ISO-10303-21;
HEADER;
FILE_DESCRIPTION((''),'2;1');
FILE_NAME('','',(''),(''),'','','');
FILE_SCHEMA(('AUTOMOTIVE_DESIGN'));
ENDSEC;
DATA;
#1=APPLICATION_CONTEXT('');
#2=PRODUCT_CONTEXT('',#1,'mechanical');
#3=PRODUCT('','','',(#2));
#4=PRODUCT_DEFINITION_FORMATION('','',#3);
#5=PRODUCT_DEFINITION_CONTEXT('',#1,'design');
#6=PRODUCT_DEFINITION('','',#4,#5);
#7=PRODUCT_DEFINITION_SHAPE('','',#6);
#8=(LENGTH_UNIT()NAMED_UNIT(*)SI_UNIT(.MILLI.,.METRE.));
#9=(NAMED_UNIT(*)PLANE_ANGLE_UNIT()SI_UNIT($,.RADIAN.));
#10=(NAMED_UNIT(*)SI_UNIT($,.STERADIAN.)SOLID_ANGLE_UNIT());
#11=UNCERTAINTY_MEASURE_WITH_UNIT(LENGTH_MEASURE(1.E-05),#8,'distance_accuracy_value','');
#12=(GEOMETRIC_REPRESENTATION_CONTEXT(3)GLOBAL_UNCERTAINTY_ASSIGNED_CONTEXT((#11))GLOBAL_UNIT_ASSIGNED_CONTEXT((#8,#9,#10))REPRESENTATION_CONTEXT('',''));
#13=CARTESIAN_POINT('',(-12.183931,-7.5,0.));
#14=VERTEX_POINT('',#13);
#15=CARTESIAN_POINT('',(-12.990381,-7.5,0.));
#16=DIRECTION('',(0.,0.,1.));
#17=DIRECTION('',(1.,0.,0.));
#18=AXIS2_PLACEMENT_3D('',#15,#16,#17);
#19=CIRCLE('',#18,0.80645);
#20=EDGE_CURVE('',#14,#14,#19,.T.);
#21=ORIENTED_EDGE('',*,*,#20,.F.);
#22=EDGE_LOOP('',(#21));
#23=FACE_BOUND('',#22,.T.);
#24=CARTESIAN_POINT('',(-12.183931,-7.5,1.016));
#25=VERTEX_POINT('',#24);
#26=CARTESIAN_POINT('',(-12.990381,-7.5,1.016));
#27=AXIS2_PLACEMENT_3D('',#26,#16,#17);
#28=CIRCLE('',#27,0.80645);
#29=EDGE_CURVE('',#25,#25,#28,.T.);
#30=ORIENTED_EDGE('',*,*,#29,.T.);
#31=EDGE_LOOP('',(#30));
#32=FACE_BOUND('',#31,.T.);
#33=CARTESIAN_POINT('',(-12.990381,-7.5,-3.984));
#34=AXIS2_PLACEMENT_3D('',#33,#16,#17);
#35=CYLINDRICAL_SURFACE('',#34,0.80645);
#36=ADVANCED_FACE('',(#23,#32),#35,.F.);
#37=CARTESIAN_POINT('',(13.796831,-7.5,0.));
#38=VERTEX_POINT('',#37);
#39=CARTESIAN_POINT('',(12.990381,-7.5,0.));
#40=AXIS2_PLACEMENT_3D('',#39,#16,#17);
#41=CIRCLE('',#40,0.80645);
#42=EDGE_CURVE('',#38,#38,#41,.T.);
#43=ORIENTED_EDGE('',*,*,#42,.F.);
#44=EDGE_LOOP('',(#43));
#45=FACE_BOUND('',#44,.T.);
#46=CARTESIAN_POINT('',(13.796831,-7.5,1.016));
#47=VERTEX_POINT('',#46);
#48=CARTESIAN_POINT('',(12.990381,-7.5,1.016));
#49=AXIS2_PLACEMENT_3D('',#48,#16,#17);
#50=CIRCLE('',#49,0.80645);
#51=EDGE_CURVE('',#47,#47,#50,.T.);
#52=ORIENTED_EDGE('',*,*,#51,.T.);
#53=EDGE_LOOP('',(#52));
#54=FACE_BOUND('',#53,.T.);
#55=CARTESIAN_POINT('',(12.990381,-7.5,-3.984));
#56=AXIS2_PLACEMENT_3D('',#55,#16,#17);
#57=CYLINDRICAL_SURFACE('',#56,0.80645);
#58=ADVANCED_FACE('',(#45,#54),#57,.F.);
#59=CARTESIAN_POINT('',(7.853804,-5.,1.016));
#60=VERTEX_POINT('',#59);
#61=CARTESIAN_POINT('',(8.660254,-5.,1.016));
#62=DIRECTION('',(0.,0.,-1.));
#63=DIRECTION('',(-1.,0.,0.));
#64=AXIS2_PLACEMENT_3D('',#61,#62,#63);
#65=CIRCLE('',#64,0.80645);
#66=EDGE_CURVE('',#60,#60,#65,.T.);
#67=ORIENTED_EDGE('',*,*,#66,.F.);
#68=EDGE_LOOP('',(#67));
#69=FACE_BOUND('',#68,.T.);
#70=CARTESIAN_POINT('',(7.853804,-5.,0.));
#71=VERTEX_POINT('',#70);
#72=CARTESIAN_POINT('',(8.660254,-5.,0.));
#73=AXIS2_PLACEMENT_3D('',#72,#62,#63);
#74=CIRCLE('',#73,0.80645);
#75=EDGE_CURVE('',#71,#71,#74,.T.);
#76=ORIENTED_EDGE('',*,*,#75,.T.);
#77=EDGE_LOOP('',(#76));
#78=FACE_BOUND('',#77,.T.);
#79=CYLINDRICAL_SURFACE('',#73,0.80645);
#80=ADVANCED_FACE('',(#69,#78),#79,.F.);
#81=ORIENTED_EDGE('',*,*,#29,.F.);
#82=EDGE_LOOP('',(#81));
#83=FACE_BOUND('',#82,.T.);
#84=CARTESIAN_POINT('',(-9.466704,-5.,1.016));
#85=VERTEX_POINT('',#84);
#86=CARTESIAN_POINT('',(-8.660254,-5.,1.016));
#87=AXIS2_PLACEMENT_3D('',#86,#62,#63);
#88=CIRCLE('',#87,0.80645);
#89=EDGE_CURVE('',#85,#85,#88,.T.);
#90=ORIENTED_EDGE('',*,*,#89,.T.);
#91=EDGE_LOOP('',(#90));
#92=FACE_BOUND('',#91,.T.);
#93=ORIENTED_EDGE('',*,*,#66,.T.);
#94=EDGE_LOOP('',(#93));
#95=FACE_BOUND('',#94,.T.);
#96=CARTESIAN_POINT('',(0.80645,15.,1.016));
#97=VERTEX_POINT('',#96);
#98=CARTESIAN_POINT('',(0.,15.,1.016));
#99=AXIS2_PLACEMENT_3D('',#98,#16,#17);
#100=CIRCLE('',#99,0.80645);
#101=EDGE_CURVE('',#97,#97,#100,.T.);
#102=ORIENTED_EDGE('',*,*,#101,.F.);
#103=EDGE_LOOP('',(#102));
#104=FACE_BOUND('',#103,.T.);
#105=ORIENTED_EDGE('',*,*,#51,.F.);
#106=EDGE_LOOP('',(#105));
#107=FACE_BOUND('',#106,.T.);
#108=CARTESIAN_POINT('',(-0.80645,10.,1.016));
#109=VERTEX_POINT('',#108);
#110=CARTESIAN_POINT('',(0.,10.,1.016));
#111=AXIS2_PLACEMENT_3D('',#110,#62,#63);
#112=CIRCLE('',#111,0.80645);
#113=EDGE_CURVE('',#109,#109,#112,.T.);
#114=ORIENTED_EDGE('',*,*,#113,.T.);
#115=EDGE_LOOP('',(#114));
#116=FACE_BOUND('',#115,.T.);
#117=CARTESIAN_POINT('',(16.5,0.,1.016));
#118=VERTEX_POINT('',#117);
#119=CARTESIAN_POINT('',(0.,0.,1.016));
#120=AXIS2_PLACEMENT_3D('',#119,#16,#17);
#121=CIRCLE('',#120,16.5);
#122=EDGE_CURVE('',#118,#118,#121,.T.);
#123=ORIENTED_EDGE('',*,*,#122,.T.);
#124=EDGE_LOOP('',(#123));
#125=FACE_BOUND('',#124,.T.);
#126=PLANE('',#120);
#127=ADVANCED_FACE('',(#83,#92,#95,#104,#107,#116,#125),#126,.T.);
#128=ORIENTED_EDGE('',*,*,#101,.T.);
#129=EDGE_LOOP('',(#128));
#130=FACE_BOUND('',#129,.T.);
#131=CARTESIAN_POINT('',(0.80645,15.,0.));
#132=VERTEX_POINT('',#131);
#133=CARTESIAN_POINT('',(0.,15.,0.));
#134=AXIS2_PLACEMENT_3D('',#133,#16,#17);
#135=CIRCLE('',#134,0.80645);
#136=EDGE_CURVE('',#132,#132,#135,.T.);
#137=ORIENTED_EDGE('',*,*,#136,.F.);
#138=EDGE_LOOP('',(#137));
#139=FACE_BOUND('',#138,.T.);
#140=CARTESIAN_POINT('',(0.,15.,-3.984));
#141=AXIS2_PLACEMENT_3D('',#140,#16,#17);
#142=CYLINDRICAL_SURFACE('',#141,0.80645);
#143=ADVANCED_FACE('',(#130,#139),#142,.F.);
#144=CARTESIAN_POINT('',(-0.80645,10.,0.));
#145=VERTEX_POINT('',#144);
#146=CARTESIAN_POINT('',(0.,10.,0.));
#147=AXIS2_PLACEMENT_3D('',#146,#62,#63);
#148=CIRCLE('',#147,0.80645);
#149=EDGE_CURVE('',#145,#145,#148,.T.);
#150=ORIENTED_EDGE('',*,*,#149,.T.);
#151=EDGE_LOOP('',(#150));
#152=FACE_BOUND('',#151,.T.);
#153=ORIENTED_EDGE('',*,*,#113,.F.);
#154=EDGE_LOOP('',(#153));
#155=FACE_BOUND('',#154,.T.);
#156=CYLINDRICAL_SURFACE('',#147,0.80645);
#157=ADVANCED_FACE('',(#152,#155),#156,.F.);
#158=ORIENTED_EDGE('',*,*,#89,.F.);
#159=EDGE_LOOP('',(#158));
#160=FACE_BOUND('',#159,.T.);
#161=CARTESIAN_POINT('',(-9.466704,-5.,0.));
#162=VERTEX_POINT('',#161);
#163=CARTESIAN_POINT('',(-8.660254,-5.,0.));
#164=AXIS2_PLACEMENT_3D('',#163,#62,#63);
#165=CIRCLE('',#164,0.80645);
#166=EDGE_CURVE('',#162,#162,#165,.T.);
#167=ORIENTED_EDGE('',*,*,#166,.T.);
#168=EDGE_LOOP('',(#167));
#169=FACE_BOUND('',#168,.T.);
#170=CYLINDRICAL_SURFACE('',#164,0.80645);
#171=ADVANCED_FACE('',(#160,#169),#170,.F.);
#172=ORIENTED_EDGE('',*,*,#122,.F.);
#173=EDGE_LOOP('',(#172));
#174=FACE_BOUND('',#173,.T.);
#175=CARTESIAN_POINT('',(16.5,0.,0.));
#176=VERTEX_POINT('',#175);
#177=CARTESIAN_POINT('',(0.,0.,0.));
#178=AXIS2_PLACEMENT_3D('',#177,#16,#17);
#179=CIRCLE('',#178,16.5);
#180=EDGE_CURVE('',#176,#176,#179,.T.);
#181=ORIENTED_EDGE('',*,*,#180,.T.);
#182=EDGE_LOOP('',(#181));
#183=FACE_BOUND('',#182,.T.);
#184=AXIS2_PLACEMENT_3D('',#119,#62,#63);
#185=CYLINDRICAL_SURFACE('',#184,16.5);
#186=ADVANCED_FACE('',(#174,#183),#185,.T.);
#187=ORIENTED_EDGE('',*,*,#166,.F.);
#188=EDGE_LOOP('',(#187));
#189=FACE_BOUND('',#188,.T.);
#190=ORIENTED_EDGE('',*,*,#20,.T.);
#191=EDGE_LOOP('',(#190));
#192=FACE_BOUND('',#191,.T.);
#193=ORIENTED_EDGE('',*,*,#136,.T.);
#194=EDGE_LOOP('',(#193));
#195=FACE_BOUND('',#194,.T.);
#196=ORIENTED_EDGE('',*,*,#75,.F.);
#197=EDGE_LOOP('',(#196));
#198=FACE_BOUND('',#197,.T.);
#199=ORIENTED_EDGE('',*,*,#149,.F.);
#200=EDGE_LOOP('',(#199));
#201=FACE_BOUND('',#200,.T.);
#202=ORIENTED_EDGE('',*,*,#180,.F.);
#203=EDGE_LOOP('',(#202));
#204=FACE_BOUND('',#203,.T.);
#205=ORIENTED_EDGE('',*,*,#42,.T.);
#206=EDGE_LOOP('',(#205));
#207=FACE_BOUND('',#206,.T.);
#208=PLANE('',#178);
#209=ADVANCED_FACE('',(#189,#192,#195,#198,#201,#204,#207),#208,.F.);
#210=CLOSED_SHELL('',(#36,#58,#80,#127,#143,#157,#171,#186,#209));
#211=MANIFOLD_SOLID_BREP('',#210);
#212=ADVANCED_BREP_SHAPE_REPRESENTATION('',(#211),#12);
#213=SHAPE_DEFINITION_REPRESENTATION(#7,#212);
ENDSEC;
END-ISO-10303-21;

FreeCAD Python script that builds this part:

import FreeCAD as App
import Part
import Sketcher

V = App.Vector
Q = App.Units.Quantity

doc = App.newDocument("Part")
body = doc.addObject("PartDesign::Body", "Body")

# Sketch on XY plane
sketch1 = doc.addObject("Sketcher::SketchObject", "Sketch")
body.addObject(sketch1)
sketch1.AttachmentSupport = (doc.XY_Plane, [""])
sketch1.MapMode = "FlatFace"
sketch1.addGeometry(Part.Circle(V(0, 0, 0), V(0, 0, 1), 16), False)
sketch1.addConstraint([
    Sketcher.Constraint("Coincident", 0, 3, -1, 1),
    Sketcher.Constraint("Diameter", 0, Q("33 mm")),
])
pad1 = doc.addObject("PartDesign::Pad", "Pad")
body.addObject(pad1)
pad1.Profile = sketch1
pad1.Length = 1.016

# Sketch on XY plane
sketch2 = doc.addObject("Sketcher::SketchObject", "Sketch001")
body.addObject(sketch2)
sketch2.AttachmentSupport = (doc.XY_Plane, [""])
sketch2.MapMode = "FlatFace"
sketch2.addGeometry([
    Part.Circle(V(0, 10, 0), V(0, 0, 1), 0.8),
    Part.Circle(V(-8.7, -5, 0), V(0, 0, 1), 0.8),
    Part.Circle(V(8.7, -5, 0), V(0, 0, 1), 0.8),
], False)
sketch2.addConstraint([
    Sketcher.Constraint("Equal", 0, 1),
    Sketcher.Constraint("Equal", 1, 2),
    Sketcher.Constraint("Symmetric", 1, 3, 2, 3, -2),
    Sketcher.Constraint("PointOnObject", 0, 3, -2),
    Sketcher.Constraint("DistanceY", -1, 1, 0, 3, Q("10 mm")),
    Sketcher.Constraint("DistanceY", 1, 3, -1, 1, Q("5 mm")),
    Sketcher.Constraint("Diameter", 0, Q("1.6129 mm")),
    Sketcher.Constraint("DistanceX", 1, 3, 2, 3, Q("17.320508 mm")),
])
doc.recompute()
hole = doc.addObject("PartDesign::Hole", "Hole")
body.addObject(hole)
hole.Profile = sketch2
hole.ThreadType = "None"
hole.Diameter = 1.6129
hole.DepthType = "ThroughAll"
hole.Reversed = True

# Sketch on XY plane
sketch3 = doc.addObject("Sketcher::SketchObject", "Sketch002")
body.addObject(sketch3)
sketch3.AttachmentSupport = (doc.XY_Plane, [""])
sketch3.MapMode = "FlatFace"
sketch3.AttachmentOffset = App.Placement(V(0, 0, 1.016), App.Rotation())
sketch3.addGeometry([
    Part.Circle(V(0, 15, 0), V(0, 0, 1), 0.8),
    Part.Circle(V(13, -7.5, 0), V(0, 0, 1), 0.8),
    Part.Circle(V(-13, -7.5, 0), V(0, 0, 1), 0.8),
], False)
sketch3.addConstraint([
    Sketcher.Constraint("Equal", 0, 1),
    Sketcher.Constraint("Equal", 1, 2),
    Sketcher.Constraint("Symmetric", 1, 3, 2, 3, -2),
    Sketcher.Constraint("PointOnObject", 0, 3, -2),
    Sketcher.Constraint("DistanceY", -1, 1, 0, 3, Q("15 mm")),
    Sketcher.Constraint("Diameter", 0, Q("1.6129 mm")),
    Sketcher.Constraint("DistanceY", 1, 3, -1, 1, Q("7.5 mm")),
    Sketcher.Constraint("DistanceX", -1, 1, 1, 3, Q("12.990381 mm")),
])
pocket1 = doc.addObject("PartDesign::Pocket", "Pocket")
body.addObject(pocket1)
pocket1.Profile = sketch3
pocket1.Length = 5

doc.recompute()
